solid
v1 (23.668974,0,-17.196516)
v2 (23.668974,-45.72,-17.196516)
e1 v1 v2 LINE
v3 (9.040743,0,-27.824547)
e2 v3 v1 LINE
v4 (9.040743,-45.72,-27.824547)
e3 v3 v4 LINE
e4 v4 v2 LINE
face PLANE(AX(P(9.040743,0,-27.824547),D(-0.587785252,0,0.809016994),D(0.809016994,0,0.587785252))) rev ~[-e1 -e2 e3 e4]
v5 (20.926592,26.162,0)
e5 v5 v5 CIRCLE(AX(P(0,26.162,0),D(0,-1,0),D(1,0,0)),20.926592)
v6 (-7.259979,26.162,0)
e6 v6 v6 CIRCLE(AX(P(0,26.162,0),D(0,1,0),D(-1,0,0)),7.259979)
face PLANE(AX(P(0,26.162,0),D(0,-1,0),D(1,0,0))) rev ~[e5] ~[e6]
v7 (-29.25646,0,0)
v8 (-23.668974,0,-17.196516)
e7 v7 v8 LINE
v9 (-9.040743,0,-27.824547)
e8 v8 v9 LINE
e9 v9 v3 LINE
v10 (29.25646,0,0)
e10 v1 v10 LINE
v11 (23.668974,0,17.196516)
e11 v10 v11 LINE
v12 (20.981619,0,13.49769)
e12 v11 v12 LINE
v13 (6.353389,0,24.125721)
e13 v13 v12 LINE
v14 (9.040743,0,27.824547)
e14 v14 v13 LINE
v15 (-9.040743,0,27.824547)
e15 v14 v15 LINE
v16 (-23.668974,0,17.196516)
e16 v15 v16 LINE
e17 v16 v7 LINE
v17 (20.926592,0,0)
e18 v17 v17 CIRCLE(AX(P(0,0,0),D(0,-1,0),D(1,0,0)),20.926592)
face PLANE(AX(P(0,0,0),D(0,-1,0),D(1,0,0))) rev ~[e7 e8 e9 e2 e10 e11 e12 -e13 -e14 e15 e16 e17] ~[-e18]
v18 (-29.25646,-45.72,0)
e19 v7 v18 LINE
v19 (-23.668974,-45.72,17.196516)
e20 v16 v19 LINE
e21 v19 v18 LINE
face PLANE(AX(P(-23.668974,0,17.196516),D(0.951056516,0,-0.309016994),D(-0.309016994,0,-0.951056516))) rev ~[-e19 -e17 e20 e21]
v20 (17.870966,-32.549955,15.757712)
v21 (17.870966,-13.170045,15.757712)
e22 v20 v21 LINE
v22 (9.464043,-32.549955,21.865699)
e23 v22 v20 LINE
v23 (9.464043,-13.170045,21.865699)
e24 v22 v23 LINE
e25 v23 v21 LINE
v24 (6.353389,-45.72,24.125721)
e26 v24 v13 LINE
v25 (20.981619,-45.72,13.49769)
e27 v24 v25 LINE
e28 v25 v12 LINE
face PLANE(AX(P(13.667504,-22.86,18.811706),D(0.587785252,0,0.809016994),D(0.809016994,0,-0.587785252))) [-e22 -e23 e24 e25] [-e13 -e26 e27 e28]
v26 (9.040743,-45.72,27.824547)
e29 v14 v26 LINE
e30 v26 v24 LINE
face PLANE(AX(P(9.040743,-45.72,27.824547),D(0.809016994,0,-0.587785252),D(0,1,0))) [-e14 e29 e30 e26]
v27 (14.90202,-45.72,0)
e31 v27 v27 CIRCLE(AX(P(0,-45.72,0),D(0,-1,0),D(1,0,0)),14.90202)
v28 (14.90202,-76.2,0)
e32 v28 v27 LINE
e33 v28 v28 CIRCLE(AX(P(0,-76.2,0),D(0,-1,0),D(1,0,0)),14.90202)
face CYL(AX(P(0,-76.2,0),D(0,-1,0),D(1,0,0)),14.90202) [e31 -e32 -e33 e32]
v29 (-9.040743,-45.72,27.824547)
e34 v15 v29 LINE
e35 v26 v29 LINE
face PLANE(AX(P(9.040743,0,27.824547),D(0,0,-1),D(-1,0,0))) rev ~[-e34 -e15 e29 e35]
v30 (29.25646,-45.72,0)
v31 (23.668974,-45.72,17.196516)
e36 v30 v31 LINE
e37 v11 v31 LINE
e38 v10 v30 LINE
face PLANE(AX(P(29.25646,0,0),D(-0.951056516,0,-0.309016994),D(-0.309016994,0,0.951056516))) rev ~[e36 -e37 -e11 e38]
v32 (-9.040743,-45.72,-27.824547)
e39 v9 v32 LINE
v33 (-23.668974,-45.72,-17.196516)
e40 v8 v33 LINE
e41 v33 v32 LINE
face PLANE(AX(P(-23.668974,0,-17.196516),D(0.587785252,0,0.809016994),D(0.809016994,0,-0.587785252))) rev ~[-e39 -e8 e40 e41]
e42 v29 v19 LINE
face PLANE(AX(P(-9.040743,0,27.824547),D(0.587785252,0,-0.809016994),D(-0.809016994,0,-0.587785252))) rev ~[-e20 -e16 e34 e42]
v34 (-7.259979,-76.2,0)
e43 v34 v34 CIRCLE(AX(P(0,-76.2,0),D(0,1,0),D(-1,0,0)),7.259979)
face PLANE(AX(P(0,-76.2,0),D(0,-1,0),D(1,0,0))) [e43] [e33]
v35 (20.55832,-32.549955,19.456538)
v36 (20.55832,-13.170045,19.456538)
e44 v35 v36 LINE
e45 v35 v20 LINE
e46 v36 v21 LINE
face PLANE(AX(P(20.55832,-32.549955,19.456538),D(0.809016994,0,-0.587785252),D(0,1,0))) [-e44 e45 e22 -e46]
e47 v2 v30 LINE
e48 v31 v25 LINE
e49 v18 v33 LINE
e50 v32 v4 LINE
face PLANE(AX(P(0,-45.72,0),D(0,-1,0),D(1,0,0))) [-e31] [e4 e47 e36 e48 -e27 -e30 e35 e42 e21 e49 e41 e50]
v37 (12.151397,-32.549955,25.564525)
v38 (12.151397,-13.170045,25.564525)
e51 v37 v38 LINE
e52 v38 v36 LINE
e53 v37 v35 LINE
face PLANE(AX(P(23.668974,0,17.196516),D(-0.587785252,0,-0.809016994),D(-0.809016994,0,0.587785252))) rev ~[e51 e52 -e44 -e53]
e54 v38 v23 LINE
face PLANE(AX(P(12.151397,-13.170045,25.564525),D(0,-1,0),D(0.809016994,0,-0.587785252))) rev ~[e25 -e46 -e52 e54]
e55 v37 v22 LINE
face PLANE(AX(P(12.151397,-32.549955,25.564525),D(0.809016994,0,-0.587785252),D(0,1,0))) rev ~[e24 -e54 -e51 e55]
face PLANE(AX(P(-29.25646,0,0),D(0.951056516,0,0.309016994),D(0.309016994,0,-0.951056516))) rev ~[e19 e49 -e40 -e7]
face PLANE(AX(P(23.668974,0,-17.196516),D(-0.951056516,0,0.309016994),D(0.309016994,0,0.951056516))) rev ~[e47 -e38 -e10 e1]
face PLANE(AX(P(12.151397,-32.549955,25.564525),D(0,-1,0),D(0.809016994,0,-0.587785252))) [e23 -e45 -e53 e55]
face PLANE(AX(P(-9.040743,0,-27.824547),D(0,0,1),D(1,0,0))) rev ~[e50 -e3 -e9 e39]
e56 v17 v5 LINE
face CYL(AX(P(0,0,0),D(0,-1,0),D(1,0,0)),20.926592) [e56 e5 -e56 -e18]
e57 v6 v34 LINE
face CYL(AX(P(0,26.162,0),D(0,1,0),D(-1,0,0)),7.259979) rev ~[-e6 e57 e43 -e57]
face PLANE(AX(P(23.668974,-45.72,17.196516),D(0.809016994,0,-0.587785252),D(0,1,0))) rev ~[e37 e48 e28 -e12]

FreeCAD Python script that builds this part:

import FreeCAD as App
import Part
import Sketcher

V = App.Vector
Q = App.Units.Quantity


def add_polygon(sketch, points):
    """Adds a closed chain of lines whose ends are joined by coincident constraints."""
    first, n = sketch.GeometryCount, len(points)
    for a, b in zip(points, points[1:] + points[:1]):
        sketch.addGeometry(Part.LineSegment(App.Vector(*a, 0), App.Vector(*b, 0)), False)
    for i in range(n):
        sketch.addConstraint(Sketcher.Constraint("Coincident", first + i, 2, first + (i + 1) % n, 1))

doc = App.newDocument("Part")
body = doc.addObject("PartDesign::Body", "Body")

# Sketch on XZ plane
sketch1 = body.newObject("Sketcher::SketchObject", "Sketch")
sketch1.AttachmentSupport = (doc.getObject("XZ_Plane"), [""])
sketch1.MapMode = "FlatFace"
add_polygon(sketch1, [(9.040743, 27.824547), (-9.040743, 27.824547), (-23.668974, 17.196516), (-29.25646, 0), (-23.668974, -17.196516), (-9.040743, -27.824547), (9.040743, -27.824547), (23.668974, -17.196516), (29.25646, 0), (23.668974, 17.196516)])  # lines 0-9
sketch1.addConstraint([
    Sketcher.Constraint("Horizontal", 0),
    Sketcher.Constraint("Horizontal", 5),
    Sketcher.Constraint("Symmetric", 0, 2, 5, 2, -1, 1),
    Sketcher.Constraint("Symmetric", 1, 2, 6, 2, -1, 1),
    Sketcher.Constraint("Symmetric", 2, 2, 7, 2, -1, 1),
    Sketcher.Constraint("Symmetric", 3, 2, 8, 2, -1, 1),
    Sketcher.Constraint("Symmetric", 3, 2, 6, 2, -2),
    Sketcher.Constraint("PointOnObject", 2, 2, -1),
    Sketcher.Constraint("Parallel", 4, 9),
    Sketcher.Constraint("Vertical", 0, 2, 4, 2),
    Sketcher.Constraint("Equal", 1, 2),
    Sketcher.Constraint("Angle", 1, Q("-144 deg")),
    Sketcher.Constraint("Angle", 2, Q("-108 deg")),
    Sketcher.Constraint("DistanceX", 0, 2, 0, 1, Q("18.081487 mm")),
    Sketcher.Constraint("DistanceX", 2, 2, -1, 1, Q("29.25646 mm")),
])
pad1 = body.newObject("PartDesign::Pad", "Pad")
pad1.Profile = sketch1
pad1.Length = Q("3 in")

# Sketch on XZ plane
sketch2 = body.newObject("Sketcher::SketchObject", "Sketch001")
sketch2.AttachmentSupport = (doc.getObject("XZ_Plane"), [""])
sketch2.MapMode = "FlatFace"
sketch2.AttachmentOffset = App.Placement(V(0, 0, 3 * 25.4), App.Rotation())
add_polygon(sketch2, [(29.25646, 0), (23.668974, 17.196516), (9.040743, 27.824547), (-9.040743, 27.824547), (-23.668974, 17.196516), (-29.25646, 0), (-23.668974, -17.196516), (-9.040743, -27.824547), (9.040743, -27.824547), (23.668974, -17.196516)])  # lines 0-9
sketch2.addGeometry(Part.Circle(V(0, 0, 0), V(0, 0, 1), 14.90202), False)  # 10
sketch2.addConstraint([
    Sketcher.Constraint("Horizontal", 2),
    Sketcher.Constraint("Horizontal", 7),
    Sketcher.Constraint("Coincident", 10, 3, -1, 1),
    Sketcher.Constraint("Symmetric", 0, 2, 5, 2, -1, 1),
    Sketcher.Constraint("Symmetric", 1, 2, 6, 2, -1, 1),
    Sketcher.Constraint("Symmetric", 3, 2, 8, 2, -1, 1),
    Sketcher.Constraint("Symmetric", 4, 2, 9, 2, -1, 1),
    Sketcher.Constraint("Symmetric", 0, 2, 3, 2, -2),
    Sketcher.Constraint("PointOnObject", 4, 2, -1),
    Sketcher.Constraint("Parallel", 3, 8),
    Sketcher.Constraint("Vertical", 2, 2, 6, 2),
    Sketcher.Constraint("Equal", 0, 1),
    Sketcher.Constraint("Angle", 0, Q("108 deg")),
    Sketcher.Constraint("Angle", 1, Q("144 deg")),
    Sketcher.Constraint("Diameter", 10, Q("29.804039 mm")),
    Sketcher.Constraint("DistanceX", 2, 2, 2, 1, Q("18.081487 mm")),
    Sketcher.Constraint("DistanceX", 4, 2, -1, 1, Q("29.25646 mm")),
])
pocket1 = body.newObject("PartDesign::Pocket", "Pocket")
pocket1.Profile = sketch2
pocket1.Length = Q("1.2 in")

# Sketch on XZ plane
sketch3 = body.newObject("Sketcher::SketchObject", "Sketch002")
sketch3.AttachmentSupport = (doc.getObject("XZ_Plane"), [""])
sketch3.MapMode = "FlatFace"
sketch3.addGeometry(Part.Circle(V(0, 0, 0), V(0, 0, 1), 20.926592), False)
sketch3.addConstraint([
    Sketcher.Constraint("Coincident", 0, 3, -1, 1),
    Sketcher.Constraint("Diameter", 0, Q("41.853183 mm")),
])
pad2 = body.newObject("PartDesign::Pad", "Pad001")
pad2.Profile = sketch3
pad2.Length = Q("1.03 in")
pad2.Reversed = True

# Sketch on an angled plane
sketch4 = body.newObject("Sketcher::SketchObject", "Sketch003")
sketch4.Placement = App.Placement(V(16.354858, 0, 22.510531), App.Rotation(V(0.809016994, 0, -0.587785252), V(0, 0.999999999, 0), V(0.587785252, 0, 0.809016994), "ZXY"))
add_polygon(sketch4, [(-9.040743, 0), (-9.040743, -45.72), (9.040743, -45.72), (9.040743, 0)])  # lines 0-3
add_polygon(sketch4, [(5.195764, -32.549955), (-5.195764, -32.549955), (-5.195764, -13.170045), (5.195764, -13.170045)])  # lines 4-7
sketch4.addConstraint([
    Sketcher.Constraint("Vertical", 0),
    Sketcher.Constraint("Horizontal", 1),
    Sketcher.Constraint("Vertical", 2),
    Sketcher.Constraint("Horizontal", 3),
    Sketcher.Constraint("Horizontal", 4),
    Sketcher.Constraint("Vertical", 5),
    Sketcher.Constraint("Horizontal", 6),
    Sketcher.Constraint("Vertical", 7),
    Sketcher.Constraint("Symmetric", 2, 2, 3, 2, -1, 1),
    Sketcher.Constraint("DistanceY", 0, 2, 0, 1, Q("1.8 in")),
    Sketcher.Constraint("DistanceX", 4, 2, 4, 1, Q("10.391529 mm")),
    Sketcher.Constraint("DistanceY", 5, 1, 5, 2, Q("19.37991 mm")),
    Sketcher.Constraint("DistanceX", 1, 1, 1, 2, Q("18.081487 mm")),
    Sketcher.Constraint("DistanceX", 0, 2, 4, 2, Q("3.844979 mm")),
    Sketcher.Constraint("DistanceY", 4, 2, -1, 1, Q("32.549955 mm")),
])
pocket2 = body.newObject("PartDesign::Pocket", "Pocket001")
pocket2.Profile = sketch4
pocket2.Length = Q("0.18 in")

# Sketch on XZ plane
sketch5 = body.newObject("Sketcher::SketchObject", "Sketch004")
sketch5.AttachmentSupport = (doc.getObject("XZ_Plane"), [""])
sketch5.MapMode = "FlatFace"
sketch5.AttachmentOffset = App.Placement(V(0, 0, -1.03 * 25.4), App.Rotation())
sketch5.addGeometry(Part.Circle(V(0, 0, 0), V(0, 0, 1), 7.259979), False)
sketch5.addConstraint([
    Sketcher.Constraint("Coincident", 0, 3, -1, 1),
    Sketcher.Constraint("Diameter", 0, Q("14.519958 mm")),
])
pocket3 = body.newObject("PartDesign::Pocket", "Pocket002")
pocket3.Profile = sketch5
pocket3.Length = Q("4.37 in")
pocket3.Reversed = True

doc.recompute()
